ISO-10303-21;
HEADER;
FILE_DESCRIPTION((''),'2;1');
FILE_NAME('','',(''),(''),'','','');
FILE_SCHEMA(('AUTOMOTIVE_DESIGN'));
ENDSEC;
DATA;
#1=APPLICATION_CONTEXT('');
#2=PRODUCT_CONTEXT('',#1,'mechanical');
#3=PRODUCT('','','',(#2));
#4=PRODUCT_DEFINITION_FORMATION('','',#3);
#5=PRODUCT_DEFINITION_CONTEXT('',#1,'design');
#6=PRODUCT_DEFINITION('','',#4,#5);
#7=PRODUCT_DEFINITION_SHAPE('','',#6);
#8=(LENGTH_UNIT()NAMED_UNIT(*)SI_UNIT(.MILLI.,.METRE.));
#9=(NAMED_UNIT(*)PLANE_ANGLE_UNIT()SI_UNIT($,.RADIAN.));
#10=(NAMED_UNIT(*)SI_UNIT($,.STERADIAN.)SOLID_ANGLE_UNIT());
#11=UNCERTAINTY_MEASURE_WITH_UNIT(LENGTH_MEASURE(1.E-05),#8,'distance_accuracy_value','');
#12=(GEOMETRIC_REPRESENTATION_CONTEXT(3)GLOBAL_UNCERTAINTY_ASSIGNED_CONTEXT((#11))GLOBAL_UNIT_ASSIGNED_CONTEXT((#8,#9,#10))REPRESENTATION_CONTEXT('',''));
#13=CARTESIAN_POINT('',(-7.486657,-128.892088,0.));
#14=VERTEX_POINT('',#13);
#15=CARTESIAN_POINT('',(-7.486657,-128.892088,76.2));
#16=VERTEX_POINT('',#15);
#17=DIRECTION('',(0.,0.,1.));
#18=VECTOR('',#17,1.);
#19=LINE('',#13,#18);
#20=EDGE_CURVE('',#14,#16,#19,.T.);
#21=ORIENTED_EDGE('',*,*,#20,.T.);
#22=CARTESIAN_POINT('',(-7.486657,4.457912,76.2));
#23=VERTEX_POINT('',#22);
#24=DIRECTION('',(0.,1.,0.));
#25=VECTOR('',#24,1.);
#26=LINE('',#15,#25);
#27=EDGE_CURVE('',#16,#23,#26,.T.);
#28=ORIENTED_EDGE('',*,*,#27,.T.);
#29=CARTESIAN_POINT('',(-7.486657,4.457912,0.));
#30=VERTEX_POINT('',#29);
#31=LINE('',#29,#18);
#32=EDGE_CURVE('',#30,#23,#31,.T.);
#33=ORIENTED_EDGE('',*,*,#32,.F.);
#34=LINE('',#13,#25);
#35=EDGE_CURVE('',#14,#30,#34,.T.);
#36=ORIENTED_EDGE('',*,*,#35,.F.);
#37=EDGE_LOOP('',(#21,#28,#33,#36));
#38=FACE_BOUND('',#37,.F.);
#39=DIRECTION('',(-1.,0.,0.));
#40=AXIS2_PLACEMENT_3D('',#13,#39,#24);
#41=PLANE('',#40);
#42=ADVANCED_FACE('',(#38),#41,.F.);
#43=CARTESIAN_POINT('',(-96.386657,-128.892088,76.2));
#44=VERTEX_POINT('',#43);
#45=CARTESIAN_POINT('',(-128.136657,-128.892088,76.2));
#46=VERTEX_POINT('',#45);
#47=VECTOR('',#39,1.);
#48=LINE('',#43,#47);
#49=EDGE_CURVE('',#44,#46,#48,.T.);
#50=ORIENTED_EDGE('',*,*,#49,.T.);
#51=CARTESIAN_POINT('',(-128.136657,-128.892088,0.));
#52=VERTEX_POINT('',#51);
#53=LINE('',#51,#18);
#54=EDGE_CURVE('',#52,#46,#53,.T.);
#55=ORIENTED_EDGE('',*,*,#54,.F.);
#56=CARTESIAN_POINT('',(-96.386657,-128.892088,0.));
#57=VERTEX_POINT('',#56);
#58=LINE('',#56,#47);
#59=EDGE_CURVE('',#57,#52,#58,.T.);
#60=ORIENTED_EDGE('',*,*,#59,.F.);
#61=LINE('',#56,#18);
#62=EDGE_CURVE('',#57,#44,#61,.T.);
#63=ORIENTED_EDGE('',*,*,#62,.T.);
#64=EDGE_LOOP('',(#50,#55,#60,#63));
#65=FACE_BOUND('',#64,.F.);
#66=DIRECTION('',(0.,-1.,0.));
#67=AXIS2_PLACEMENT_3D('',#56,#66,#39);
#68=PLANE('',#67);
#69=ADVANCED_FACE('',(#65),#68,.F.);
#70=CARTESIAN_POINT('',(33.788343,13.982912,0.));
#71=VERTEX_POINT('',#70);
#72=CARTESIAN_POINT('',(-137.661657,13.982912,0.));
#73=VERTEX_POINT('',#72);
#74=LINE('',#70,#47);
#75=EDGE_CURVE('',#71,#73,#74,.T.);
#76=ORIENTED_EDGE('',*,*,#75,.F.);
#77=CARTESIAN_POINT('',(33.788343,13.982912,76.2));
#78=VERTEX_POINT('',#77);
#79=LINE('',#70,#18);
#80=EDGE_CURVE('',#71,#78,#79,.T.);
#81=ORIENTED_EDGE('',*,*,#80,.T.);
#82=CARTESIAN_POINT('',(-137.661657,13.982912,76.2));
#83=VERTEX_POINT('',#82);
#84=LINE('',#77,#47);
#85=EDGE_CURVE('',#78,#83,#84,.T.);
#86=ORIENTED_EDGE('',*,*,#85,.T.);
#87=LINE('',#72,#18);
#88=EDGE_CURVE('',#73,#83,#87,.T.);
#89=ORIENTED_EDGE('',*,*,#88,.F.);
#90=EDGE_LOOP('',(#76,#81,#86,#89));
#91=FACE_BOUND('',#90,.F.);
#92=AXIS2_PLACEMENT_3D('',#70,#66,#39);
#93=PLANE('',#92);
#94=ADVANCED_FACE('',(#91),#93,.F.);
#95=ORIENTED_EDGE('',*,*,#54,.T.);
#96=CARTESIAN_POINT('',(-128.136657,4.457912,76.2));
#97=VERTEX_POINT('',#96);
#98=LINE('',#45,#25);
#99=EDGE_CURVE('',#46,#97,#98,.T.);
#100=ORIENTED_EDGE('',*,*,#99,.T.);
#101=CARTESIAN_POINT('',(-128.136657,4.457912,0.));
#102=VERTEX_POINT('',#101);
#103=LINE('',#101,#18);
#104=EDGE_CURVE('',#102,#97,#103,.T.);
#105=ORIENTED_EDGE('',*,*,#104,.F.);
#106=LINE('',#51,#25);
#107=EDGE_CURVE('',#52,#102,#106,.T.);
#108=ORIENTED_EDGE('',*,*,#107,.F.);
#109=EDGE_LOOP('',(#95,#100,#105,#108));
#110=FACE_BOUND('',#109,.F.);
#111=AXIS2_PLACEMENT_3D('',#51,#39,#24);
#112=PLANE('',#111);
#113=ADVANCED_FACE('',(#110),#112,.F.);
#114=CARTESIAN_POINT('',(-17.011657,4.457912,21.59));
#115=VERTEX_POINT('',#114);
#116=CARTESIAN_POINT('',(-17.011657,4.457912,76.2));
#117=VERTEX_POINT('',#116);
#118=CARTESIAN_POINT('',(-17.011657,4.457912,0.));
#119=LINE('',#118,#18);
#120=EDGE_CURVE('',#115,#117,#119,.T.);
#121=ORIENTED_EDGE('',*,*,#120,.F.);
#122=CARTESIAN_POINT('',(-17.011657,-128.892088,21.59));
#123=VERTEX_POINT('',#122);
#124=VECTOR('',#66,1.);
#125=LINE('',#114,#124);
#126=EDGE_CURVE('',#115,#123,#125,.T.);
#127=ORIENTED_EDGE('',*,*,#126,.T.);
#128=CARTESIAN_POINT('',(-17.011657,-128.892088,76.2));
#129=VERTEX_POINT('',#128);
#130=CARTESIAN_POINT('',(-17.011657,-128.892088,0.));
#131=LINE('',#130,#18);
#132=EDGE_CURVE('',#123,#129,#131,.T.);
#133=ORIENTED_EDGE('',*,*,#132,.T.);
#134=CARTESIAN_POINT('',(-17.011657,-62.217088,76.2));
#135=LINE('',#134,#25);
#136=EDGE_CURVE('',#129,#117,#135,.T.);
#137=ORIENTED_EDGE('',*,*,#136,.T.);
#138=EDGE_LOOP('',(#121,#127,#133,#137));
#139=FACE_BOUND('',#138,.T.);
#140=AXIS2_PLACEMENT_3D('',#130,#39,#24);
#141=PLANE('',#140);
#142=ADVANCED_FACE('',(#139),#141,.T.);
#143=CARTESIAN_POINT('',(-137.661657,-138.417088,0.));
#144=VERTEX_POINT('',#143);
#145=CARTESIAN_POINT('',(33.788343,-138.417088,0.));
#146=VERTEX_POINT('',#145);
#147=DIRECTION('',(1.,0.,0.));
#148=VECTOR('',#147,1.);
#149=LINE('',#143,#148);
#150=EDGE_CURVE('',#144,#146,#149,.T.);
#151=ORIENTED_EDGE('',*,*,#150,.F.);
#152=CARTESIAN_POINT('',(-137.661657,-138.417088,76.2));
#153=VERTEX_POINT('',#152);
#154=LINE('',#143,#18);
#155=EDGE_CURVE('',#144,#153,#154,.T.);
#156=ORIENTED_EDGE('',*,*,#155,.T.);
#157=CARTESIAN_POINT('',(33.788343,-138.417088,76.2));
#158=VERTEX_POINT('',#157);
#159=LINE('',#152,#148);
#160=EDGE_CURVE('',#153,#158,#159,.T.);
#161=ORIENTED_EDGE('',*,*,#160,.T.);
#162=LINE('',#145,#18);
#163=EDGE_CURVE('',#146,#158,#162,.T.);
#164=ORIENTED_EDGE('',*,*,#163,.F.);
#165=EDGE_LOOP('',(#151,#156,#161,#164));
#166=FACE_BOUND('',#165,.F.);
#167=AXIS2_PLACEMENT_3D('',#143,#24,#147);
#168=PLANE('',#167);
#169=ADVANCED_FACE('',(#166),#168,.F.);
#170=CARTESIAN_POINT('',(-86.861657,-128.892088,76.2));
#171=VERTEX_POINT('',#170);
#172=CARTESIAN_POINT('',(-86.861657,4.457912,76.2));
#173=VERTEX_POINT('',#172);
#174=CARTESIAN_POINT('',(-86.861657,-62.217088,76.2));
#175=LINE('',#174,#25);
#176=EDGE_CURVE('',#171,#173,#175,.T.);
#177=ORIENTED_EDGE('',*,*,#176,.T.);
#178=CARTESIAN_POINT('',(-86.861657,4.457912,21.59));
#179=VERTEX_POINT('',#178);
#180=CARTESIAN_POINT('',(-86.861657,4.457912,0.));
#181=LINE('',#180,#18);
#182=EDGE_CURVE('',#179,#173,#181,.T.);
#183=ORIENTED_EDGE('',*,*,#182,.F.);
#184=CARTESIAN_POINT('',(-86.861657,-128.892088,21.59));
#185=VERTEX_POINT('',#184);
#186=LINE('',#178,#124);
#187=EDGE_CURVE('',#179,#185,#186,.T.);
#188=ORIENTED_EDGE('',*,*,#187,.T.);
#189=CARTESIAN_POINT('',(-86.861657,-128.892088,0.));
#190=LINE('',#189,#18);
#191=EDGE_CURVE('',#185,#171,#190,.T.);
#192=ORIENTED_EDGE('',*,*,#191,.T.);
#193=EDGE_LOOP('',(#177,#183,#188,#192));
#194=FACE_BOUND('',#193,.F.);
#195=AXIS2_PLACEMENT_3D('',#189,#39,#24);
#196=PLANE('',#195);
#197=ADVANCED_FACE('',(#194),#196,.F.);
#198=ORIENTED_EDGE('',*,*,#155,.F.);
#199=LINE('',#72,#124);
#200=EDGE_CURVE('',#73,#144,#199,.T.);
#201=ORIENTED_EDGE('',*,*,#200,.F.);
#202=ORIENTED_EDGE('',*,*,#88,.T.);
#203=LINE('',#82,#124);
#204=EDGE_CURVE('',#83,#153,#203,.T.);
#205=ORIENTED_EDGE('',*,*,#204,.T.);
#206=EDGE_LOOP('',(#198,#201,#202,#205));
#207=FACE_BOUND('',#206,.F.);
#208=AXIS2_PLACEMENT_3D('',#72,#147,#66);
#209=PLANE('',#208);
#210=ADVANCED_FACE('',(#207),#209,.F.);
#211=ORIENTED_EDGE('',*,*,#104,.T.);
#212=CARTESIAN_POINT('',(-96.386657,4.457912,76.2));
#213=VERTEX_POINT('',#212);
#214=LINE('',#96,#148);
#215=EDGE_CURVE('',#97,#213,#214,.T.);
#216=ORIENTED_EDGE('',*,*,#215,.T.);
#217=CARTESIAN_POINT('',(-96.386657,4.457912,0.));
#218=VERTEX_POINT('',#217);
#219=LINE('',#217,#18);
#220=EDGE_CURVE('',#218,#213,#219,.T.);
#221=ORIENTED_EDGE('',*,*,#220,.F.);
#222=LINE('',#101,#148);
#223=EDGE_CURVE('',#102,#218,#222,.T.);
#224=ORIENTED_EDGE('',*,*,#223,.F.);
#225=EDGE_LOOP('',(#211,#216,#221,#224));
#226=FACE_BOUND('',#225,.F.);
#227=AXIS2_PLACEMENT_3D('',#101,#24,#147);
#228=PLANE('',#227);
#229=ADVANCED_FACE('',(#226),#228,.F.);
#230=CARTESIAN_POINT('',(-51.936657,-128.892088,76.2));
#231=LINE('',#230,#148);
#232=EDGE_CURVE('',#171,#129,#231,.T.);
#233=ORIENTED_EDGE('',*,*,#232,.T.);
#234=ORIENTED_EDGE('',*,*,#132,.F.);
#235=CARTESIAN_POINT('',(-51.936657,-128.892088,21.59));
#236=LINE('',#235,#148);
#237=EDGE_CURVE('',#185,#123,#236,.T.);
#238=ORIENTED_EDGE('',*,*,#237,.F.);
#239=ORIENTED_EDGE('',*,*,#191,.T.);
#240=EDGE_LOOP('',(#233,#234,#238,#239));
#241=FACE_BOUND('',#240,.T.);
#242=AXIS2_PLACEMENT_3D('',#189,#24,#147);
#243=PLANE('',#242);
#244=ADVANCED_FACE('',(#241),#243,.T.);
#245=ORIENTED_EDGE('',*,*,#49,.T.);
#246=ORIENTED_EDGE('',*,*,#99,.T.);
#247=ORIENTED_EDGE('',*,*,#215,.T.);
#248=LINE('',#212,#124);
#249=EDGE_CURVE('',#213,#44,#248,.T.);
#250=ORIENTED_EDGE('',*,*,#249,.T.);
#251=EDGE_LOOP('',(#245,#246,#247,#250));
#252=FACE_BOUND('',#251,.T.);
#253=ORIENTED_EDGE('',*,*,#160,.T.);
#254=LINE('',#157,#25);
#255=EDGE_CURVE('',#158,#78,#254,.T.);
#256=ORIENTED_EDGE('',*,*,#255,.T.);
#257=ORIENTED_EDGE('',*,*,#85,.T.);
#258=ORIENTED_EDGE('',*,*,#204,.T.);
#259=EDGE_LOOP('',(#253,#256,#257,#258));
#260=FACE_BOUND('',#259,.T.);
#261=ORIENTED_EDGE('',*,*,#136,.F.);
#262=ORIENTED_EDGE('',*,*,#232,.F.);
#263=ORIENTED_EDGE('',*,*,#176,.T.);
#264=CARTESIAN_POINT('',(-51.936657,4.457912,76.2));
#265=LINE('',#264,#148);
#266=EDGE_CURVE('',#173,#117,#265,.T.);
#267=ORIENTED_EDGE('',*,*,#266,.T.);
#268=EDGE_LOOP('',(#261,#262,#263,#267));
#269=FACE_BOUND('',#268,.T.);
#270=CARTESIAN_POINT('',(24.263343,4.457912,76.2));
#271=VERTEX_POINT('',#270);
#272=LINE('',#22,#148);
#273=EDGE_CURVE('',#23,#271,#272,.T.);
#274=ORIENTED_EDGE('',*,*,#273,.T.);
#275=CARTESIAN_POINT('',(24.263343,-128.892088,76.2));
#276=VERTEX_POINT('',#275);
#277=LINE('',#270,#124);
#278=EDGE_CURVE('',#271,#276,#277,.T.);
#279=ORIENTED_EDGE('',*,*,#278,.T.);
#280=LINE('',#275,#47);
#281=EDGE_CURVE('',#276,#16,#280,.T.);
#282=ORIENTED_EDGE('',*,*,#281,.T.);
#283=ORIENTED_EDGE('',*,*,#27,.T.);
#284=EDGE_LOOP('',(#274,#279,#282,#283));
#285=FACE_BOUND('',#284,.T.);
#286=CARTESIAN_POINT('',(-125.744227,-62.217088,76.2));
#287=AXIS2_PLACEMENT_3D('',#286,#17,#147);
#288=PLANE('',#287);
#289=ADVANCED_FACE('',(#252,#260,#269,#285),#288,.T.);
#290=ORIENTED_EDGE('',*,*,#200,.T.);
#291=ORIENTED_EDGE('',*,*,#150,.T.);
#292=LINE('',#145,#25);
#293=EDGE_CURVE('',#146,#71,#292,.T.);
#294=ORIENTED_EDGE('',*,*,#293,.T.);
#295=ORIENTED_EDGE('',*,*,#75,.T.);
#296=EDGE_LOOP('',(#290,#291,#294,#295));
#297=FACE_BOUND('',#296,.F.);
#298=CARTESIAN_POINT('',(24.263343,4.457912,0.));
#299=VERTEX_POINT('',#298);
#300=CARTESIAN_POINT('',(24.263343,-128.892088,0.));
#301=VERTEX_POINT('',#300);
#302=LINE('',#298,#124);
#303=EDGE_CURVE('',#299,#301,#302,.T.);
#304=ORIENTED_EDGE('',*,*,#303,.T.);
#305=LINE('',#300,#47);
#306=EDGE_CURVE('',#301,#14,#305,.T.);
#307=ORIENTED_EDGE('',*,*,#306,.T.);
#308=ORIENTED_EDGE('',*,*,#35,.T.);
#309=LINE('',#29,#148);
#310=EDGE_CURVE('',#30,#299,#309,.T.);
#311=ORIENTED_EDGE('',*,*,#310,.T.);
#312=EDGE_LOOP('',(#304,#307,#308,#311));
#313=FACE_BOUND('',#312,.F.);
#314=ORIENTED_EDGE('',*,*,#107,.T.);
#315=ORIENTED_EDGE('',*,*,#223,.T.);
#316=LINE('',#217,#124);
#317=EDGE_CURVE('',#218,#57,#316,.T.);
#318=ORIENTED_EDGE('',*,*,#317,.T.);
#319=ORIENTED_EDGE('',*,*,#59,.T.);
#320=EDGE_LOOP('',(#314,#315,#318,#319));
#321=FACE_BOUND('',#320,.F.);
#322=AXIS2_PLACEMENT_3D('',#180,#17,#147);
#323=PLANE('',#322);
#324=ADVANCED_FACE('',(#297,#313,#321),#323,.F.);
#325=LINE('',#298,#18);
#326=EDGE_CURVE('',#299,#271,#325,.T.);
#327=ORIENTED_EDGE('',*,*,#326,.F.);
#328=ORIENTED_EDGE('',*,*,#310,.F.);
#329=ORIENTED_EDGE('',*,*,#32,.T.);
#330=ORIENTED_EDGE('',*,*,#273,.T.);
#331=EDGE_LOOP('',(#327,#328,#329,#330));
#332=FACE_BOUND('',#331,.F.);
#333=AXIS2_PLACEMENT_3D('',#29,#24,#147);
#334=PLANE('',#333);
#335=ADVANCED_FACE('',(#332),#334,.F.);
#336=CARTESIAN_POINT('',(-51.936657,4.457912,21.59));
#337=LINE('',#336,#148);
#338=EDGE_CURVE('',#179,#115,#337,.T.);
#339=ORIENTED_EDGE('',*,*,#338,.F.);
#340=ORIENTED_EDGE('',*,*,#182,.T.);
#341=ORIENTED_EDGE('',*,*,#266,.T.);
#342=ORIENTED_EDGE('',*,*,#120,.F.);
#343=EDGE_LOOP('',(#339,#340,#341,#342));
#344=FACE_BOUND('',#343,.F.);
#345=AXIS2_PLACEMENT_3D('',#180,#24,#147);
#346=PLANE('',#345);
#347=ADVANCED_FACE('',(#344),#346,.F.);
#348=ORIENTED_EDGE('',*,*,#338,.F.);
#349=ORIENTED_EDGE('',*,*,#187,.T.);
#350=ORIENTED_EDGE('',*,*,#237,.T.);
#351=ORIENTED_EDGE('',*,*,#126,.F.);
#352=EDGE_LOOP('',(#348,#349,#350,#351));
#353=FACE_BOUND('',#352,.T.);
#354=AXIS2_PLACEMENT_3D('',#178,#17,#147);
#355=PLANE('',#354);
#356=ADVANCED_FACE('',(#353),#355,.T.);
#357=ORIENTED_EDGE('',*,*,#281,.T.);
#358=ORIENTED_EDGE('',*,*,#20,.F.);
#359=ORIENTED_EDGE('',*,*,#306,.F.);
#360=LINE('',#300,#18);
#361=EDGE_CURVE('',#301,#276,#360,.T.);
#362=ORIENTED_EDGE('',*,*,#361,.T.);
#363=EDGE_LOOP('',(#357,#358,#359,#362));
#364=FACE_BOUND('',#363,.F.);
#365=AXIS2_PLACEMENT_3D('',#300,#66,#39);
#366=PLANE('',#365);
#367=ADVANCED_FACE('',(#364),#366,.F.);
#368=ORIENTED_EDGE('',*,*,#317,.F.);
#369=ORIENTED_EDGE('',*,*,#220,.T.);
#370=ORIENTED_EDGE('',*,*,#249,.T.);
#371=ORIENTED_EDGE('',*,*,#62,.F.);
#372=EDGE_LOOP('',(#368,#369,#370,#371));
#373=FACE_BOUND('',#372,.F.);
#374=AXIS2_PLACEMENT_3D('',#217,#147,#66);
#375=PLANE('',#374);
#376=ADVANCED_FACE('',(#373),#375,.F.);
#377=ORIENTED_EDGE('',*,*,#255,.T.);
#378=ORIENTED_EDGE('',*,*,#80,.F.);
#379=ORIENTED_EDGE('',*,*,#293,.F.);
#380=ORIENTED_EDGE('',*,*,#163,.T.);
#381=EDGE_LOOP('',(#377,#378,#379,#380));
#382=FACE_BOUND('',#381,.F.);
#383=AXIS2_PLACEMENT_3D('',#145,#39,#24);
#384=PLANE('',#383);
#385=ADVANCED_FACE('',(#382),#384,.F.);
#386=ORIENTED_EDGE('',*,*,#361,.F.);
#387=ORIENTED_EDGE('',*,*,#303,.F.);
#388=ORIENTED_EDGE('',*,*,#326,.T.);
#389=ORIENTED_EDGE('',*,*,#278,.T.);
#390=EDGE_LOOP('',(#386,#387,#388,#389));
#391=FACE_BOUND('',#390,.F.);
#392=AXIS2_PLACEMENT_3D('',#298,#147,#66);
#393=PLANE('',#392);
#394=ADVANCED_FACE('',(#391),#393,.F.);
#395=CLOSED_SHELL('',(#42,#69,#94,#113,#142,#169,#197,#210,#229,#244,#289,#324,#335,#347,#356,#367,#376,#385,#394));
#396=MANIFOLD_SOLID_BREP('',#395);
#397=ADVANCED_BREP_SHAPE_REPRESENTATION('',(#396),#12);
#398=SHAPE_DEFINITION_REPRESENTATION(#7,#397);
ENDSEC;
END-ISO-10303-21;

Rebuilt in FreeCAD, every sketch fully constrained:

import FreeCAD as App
import Part
import Sketcher
from FreeCAD import Vector
Q = App.Units.Quantity

doc = App.newDocument("Part")
params = doc.addObject("Spreadsheet::Sheet", "Params")
for row, (alias, value) in enumerate([
    ("sketch1_height", "6 in"),
    ("sketch1_width", "6.75 in"),
    ("sketch1_width2", "1.25 in"),
    ("sketch1_height2", "5.25 in"),
    ("pad1_length", "3 in"),
    ("sketch2_width", "2.75 in"),
    ("sketch2_height", "0.85 in"),
], start=1):
    params.set(f"A{row}", alias)
    params.set(f"B{row}", "=" + value)
    params.setAlias(f"B{row}", alias)

body = doc.addObject("PartDesign::Body", "Body")

sketch1 = doc.addObject("Sketcher::SketchObject", "Sketch")
body.addObject(sketch1)
sketch1.AttachmentSupport = (doc.XY_Plane, [""])
sketch1.MapMode = "FlatFace"
sketch1.addGeometry([
    Part.LineSegment(Vector(-138, 14, 0), Vector(-138, -138, 0)),
    Part.LineSegment(Vector(-138, -138, 0), Vector(34, -138, 0)),
    Part.LineSegment(Vector(34, -138, 0), Vector(34, 14, 0)),
    Part.LineSegment(Vector(34, 14, 0), Vector(-138, 14, 0)),
    Part.LineSegment(Vector(-96, -129, 0), Vector(-128, -129, 0)),
    Part.LineSegment(Vector(-128, -129, 0), Vector(-128, 4, 0)),
    Part.LineSegment(Vector(-128, 4, 0), Vector(-96, 4, 0)),
    Part.LineSegment(Vector(-96, 4, 0), Vector(-96, -129, 0)),
    Part.LineSegment(Vector(-17, -129, 0), Vector(-87, -129, 0)),
    Part.LineSegment(Vector(-87, -129, 0), Vector(-87, 4, 0)),
    Part.LineSegment(Vector(-87, 4, 0), Vector(-17, 4, 0)),
    Part.LineSegment(Vector(-17, 4, 0), Vector(-17, -129, 0)),
    Part.LineSegment(Vector(-7, -129, 0), Vector(-7, 4, 0)),
    Part.LineSegment(Vector(-7, 4, 0), Vector(24, 4, 0)),
    Part.LineSegment(Vector(24, 4, 0), Vector(24, -129, 0)),
    Part.LineSegment(Vector(24, -129, 0), Vector(-7, -129, 0)),
], False)
sketch1.addConstraint([
    Sketcher.Constraint("Coincident", 0, 2, 1, 1),
    Sketcher.Constraint("Coincident", 1, 2, 2, 1),
    Sketcher.Constraint("Coincident", 2, 2, 3, 1),
    Sketcher.Constraint("Coincident", 3, 2, 0, 1),
    Sketcher.Constraint("Coincident", 4, 2, 5, 1),
    Sketcher.Constraint("Coincident", 5, 2, 6, 1),
    Sketcher.Constraint("Coincident", 6, 2, 7, 1),
    Sketcher.Constraint("Coincident", 7, 2, 4, 1),
    Sketcher.Constraint("Coincident", 8, 2, 9, 1),
    Sketcher.Constraint("Coincident", 9, 2, 10, 1),
    Sketcher.Constraint("Coincident", 10, 2, 11, 1),
    Sketcher.Constraint("Coincident", 11, 2, 8, 1),
    Sketcher.Constraint("Coincident", 12, 2, 13, 1),
    Sketcher.Constraint("Coincident", 13, 2, 14, 1),
    Sketcher.Constraint("Coincident", 14, 2, 15, 1),
    Sketcher.Constraint("Coincident", 15, 2, 12, 1),
    Sketcher.Constraint("Vertical", 0),
    Sketcher.Constraint("Horizontal", 1),
    Sketcher.Constraint("Vertical", 2),
    Sketcher.Constraint("Horizontal", 3),
    Sketcher.Constraint("Horizontal", 4),
    Sketcher.Constraint("Vertical", 5),
    Sketcher.Constraint("Horizontal", 6),
    Sketcher.Constraint("Vertical", 7),
    Sketcher.Constraint("Horizontal", 8),
    Sketcher.Constraint("Vertical", 9),
    Sketcher.Constraint("Horizontal", 10),
    Sketcher.Constraint("Vertical", 11),
    Sketcher.Constraint("Vertical", 12),
    Sketcher.Constraint("Horizontal", 13),
    Sketcher.Constraint("Vertical", 14),
    Sketcher.Constraint("Horizontal", 15),
    Sketcher.Constraint("Horizontal", 7, 2, 8, 2),
    Sketcher.Constraint("Horizontal", 6, 2, 9, 2),
    Sketcher.Constraint("Horizontal", 10, 2, 12, 2),
    Sketcher.Constraint("Horizontal", 11, 2, 14, 2),
    Sketcher.Constraint("Equal", 6, 13),
    Sketcher.Constraint("DistanceY", 0, 2, 0, 1, Q("6 in")),
    Sketcher.Constraint("DistanceX", 0, 2, 8, 2, Q("2 in")),
    Sketcher.Constraint("DistanceX", 10, 2, 2, 2, Q("2 in")),
    Sketcher.Constraint("DistanceX", 1, 1, 1, 2, Q("6.75 in")),
    Sketcher.Constraint("DistanceX", 4, 2, 4, 1, Q("1.25 in")),
    Sketcher.Constraint("DistanceY", 5, 1, 5, 2, Q("5.25 in")),
    Sketcher.Constraint("DistanceX", 6, 2, 12, 2, Q("3.5 in")),
    Sketcher.Constraint("DistanceX", 0, 2, 4, 2, Q("0.375 in")),
    Sketcher.Constraint("DistanceY", 0, 2, 4, 2, Q("0.375 in")),
    Sketcher.Constraint("DistanceY", 0, 2, -1, 1, Q("138.417088 mm")),
    Sketcher.Constraint("DistanceX", 0, 2, -1, 1, Q("137.661657 mm")),
])
sketch1.setExpression("Constraints[37]", "Params.sketch1_height")
sketch1.setExpression("Constraints[40]", "Params.sketch1_width")
sketch1.setExpression("Constraints[41]", "Params.sketch1_width2")
sketch1.setExpression("Constraints[42]", "Params.sketch1_height2")
pad1 = doc.addObject("PartDesign::Pad", "Pad")
body.addObject(pad1)
pad1.Profile = sketch1
pad1.setExpression("Length", "Params.pad1_length")

sketch2 = doc.addObject("Sketcher::SketchObject", "Sketch001")
body.addObject(sketch2)
sketch2.AttachmentSupport = (doc.XZ_Plane, [""])
sketch2.MapMode = "FlatFace"
sketch2.AttachmentOffset = App.Placement(Vector(0, 0, -4.457912), App.Rotation())
sketch2.addGeometry([
    Part.LineSegment(Vector(-87, 22, 0), Vector(-87, 0, 0)),
    Part.LineSegment(Vector(-87, 0, 0), Vector(-17, 0, 0)),
    Part.LineSegment(Vector(-17, 0, 0), Vector(-17, 22, 0)),
    Part.LineSegment(Vector(-17, 22, 0), Vector(-87, 22, 0)),
], False)
sketch2.addConstraint([
    Sketcher.Constraint("Coincident", 0, 2, 1, 1),
    Sketcher.Constraint("Coincident", 1, 2, 2, 1),
    Sketcher.Constraint("Coincident", 2, 2, 3, 1),
    Sketcher.Constraint("Coincident", 3, 2, 0, 1),
    Sketcher.Constraint("Vertical", 0),
    Sketcher.Constraint("Horizontal", 1),
    Sketcher.Constraint("Vertical", 2),
    Sketcher.Constraint("Horizontal", 3),
    Sketcher.Constraint("PointOnObject", 0, 2, -1),
    Sketcher.Constraint("DistanceX", 1, 1, 1, 2, Q("2.75 in")),
    Sketcher.Constraint("DistanceY", 0, 2, 0, 1, Q("0.85 in")),
    Sketcher.Constraint("DistanceX", 0, 2, -1, 1, Q("86.861657 mm")),
])
sketch2.setExpression("Constraints[9]", "Params.sketch2_width")
sketch2.setExpression("Constraints[10]", "Params.sketch2_height")
pad2 = doc.addObject("PartDesign::Pad", "Pad001")
body.addObject(pad2)
pad2.Profile = sketch2
pad2.Type = "UpToLast"

doc.recompute()
